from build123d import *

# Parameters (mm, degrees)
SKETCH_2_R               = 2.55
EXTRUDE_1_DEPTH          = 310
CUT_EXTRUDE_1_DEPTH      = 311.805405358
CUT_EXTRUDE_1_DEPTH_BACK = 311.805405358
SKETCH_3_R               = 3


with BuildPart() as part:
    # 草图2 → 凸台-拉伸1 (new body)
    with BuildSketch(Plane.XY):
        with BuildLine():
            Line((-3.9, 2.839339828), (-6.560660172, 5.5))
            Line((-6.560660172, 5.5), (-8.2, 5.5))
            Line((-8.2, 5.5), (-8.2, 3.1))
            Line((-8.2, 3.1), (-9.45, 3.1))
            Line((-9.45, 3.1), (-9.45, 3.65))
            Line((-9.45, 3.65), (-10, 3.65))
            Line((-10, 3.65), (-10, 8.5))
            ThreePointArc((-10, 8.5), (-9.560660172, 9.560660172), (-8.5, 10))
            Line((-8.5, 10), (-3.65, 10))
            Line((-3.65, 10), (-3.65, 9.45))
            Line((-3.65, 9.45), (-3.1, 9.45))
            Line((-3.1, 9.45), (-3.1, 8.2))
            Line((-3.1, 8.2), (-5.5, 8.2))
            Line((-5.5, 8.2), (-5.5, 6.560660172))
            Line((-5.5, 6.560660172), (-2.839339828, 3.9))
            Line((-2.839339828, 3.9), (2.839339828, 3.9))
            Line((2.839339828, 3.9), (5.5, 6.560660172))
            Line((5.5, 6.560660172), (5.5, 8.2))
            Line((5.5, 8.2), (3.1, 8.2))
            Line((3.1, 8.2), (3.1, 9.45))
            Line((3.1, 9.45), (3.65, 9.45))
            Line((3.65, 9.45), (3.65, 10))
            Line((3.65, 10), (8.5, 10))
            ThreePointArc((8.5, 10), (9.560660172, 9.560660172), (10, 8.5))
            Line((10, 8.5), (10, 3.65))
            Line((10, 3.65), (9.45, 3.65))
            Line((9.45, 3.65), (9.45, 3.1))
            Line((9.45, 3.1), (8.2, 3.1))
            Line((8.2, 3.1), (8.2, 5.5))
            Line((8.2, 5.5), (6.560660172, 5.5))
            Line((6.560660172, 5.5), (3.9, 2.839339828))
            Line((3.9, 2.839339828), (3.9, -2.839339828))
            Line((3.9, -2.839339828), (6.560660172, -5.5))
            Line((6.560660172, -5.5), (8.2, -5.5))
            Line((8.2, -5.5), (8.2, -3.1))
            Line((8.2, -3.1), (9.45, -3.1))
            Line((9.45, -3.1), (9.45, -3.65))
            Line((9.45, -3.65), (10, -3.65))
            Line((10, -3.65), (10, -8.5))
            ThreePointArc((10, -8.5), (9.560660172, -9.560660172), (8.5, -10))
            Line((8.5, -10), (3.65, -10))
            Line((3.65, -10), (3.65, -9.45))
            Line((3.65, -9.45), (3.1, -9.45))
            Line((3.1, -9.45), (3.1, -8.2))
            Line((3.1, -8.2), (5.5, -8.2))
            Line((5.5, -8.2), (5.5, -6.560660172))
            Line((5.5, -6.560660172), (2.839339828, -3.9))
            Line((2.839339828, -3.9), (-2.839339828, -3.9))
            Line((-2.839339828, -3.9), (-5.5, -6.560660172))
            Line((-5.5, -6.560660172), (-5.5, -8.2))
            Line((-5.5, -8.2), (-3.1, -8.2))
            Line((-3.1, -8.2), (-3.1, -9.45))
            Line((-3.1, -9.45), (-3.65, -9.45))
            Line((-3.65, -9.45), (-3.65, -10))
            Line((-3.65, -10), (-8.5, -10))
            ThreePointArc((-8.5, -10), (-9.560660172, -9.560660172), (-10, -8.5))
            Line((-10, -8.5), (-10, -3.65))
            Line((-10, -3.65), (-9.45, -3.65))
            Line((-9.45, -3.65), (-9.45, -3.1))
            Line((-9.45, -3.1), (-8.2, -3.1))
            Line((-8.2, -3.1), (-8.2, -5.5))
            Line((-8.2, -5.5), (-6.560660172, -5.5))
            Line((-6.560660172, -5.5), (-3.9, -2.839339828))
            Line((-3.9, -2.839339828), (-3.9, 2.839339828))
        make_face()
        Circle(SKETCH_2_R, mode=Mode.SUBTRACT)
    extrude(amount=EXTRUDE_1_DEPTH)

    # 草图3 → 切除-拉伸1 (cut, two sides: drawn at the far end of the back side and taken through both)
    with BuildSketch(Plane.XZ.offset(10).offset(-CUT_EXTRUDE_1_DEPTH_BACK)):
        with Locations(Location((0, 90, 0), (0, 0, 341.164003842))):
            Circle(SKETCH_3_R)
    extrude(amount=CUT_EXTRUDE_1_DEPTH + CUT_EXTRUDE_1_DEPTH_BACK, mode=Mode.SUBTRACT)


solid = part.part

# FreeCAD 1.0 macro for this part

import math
import FreeCAD as App
import Part
import Sketcher
Q = App.Units.Quantity

doc = App.newDocument("Part")
body = doc.addObject("PartDesign::Body", "Body")

# Sketch on XY plane
sketch1 = doc.addObject("Sketcher::SketchObject", "Sketch")
body.addObject(sketch1)
sketch1.AttachmentSupport = (doc.XY_Plane, [""])
sketch1.MapMode = "FlatFace"
sketch1.addGeometry([
    Part.LineSegment(App.Vector(-6.6, 5.5, 0), App.Vector(-3.9, 2.8, 0)),  # 0
    Part.LineSegment(App.Vector(-3.9, 2.8, 0), App.Vector(-3.9, -2.8, 0)),  # 1
    Part.LineSegment(App.Vector(-3.9, -2.8, 0), App.Vector(-6.6, -5.5, 0)),  # 2
    Part.LineSegment(App.Vector(-6.6, -5.5, 0), App.Vector(-8.2, -5.5, 0)),  # 3
    Part.LineSegment(App.Vector(-8.2, -5.5, 0), App.Vector(-8.2, -3.1, 0)),  # 4
    Part.LineSegment(App.Vector(-8.2, -3.1, 0), App.Vector(-9.4, -3.1, 0)),  # 5
    Part.LineSegment(App.Vector(-9.4, -3.1, 0), App.Vector(-9.4, -3.6, 0)),  # 6
    Part.LineSegment(App.Vector(-9.4, -3.6, 0), App.Vector(-10, -3.6, 0)),  # 7
    Part.LineSegment(App.Vector(-10, -3.6, 0), App.Vector(-10, -8.5, 0)),  # 8
    Part.ArcOfCircle(Part.Circle(App.Vector(-8.5, -8.5, 0), App.Vector(0, 0, 1), 1.5), math.radians(180), math.radians(270)),  # 9
    Part.LineSegment(App.Vector(-8.5, -10, 0), App.Vector(-3.6, -10, 0)),  # 10
    Part.LineSegment(App.Vector(-3.6, -10, 0), App.Vector(-3.6, -9.4, 0)),  # 11
    Part.LineSegment(App.Vector(-3.6, -9.4, 0), App.Vector(-3.1, -9.4, 0)),  # 12
    Part.LineSegment(App.Vector(-3.1, -9.4, 0), App.Vector(-3.1, -8.2, 0)),  # 13
    Part.LineSegment(App.Vector(-3.1, -8.2, 0), App.Vector(-5.5, -8.2, 0)),  # 14
    Part.LineSegment(App.Vector(-5.5, -8.2, 0), App.Vector(-5.5, -6.6, 0)),  # 15
    Part.LineSegment(App.Vector(-5.5, -6.6, 0), App.Vector(-2.8, -3.9, 0)),  # 16
    Part.LineSegment(App.Vector(-2.8, -3.9, 0), App.Vector(2.8, -3.9, 0)),  # 17
    Part.LineSegment(App.Vector(2.8, -3.9, 0), App.Vector(5.5, -6.6, 0)),  # 18
    Part.LineSegment(App.Vector(5.5, -6.6, 0), App.Vector(5.5, -8.2, 0)),  # 19
    Part.LineSegment(App.Vector(5.5, -8.2, 0), App.Vector(3.1, -8.2, 0)),  # 20
    Part.LineSegment(App.Vector(3.1, -8.2, 0), App.Vector(3.1, -9.4, 0)),  # 21
    Part.LineSegment(App.Vector(3.1, -9.4, 0), App.Vector(3.6, -9.4, 0)),  # 22
    Part.LineSegment(App.Vector(3.6, -9.4, 0), App.Vector(3.6, -10, 0)),  # 23
    Part.LineSegment(App.Vector(3.6, -10, 0), App.Vector(8.5, -10, 0)),  # 24
    Part.ArcOfCircle(Part.Circle(App.Vector(8.5, -8.5, 0), App.Vector(0, 0, 1), 1.5), math.radians(-90), math.radians(0)),  # 25
    Part.LineSegment(App.Vector(10, -8.5, 0), App.Vector(10, -3.6, 0)),  # 26
    Part.LineSegment(App.Vector(10, -3.6, 0), App.Vector(9.4, -3.6, 0)),  # 27
    Part.LineSegment(App.Vector(9.4, -3.6, 0), App.Vector(9.4, -3.1, 0)),  # 28
    Part.LineSegment(App.Vector(9.4, -3.1, 0), App.Vector(8.2, -3.1, 0)),  # 29
    Part.LineSegment(App.Vector(8.2, -3.1, 0), App.Vector(8.2, -5.5, 0)),  # 30
    Part.LineSegment(App.Vector(8.2, -5.5, 0), App.Vector(6.6, -5.5, 0)),  # 31
    Part.LineSegment(App.Vector(6.6, -5.5, 0), App.Vector(3.9, -2.8, 0)),  # 32
    Part.LineSegment(App.Vector(3.9, -2.8, 0), App.Vector(3.9, 2.8, 0)),  # 33
    Part.LineSegment(App.Vector(3.9, 2.8, 0), App.Vector(6.6, 5.5, 0)),  # 34
    Part.LineSegment(App.Vector(6.6, 5.5, 0), App.Vector(8.2, 5.5, 0)),  # 35
    Part.LineSegment(App.Vector(8.2, 5.5, 0), App.Vector(8.2, 3.1, 0)),  # 36
    Part.LineSegment(App.Vector(8.2, 3.1, 0), App.Vector(9.4, 3.1, 0)),  # 37
    Part.LineSegment(App.Vector(9.4, 3.1, 0), App.Vector(9.4, 3.6, 0)),  # 38
    Part.LineSegment(App.Vector(9.4, 3.6, 0), App.Vector(10, 3.6, 0)),  # 39
    Part.LineSegment(App.Vector(10, 3.6, 0), App.Vector(10, 8.5, 0)),  # 40
    Part.ArcOfCircle(Part.Circle(App.Vector(8.5, 8.5, 0), App.Vector(0, 0, 1), 1.5), math.radians(0), math.radians(90)),  # 41
    Part.LineSegment(App.Vector(8.5, 10, 0), App.Vector(3.6, 10, 0)),  # 42
    Part.LineSegment(App.Vector(3.6, 10, 0), App.Vector(3.6, 9.4, 0)),  # 43
    Part.LineSegment(App.Vector(3.6, 9.4, 0), App.Vector(3.1, 9.4, 0)),  # 44
    Part.LineSegment(App.Vector(3.1, 9.4, 0), App.Vector(3.1, 8.2, 0)),  # 45
    Part.LineSegment(App.Vector(3.1, 8.2, 0), App.Vector(5.5, 8.2, 0)),  # 46
    Part.LineSegment(App.Vector(5.5, 8.2, 0), App.Vector(5.5, 6.6, 0)),  # 47
    Part.LineSegment(App.Vector(5.5, 6.6, 0), App.Vector(2.8, 3.9, 0)),  # 48
    Part.LineSegment(App.Vector(2.8, 3.9, 0), App.Vector(-2.8, 3.9, 0)),  # 49
    Part.LineSegment(App.Vector(-2.8, 3.9, 0), App.Vector(-5.5, 6.6, 0)),  # 50
    Part.LineSegment(App.Vector(-5.5, 6.6, 0), App.Vector(-5.5, 8.2, 0)),  # 51
    Part.LineSegment(App.Vector(-5.5, 8.2, 0), App.Vector(-3.1, 8.2, 0)),  # 52
    Part.LineSegment(App.Vector(-3.1, 8.2, 0), App.Vector(-3.1, 9.4, 0)),  # 53
    Part.LineSegment(App.Vector(-3.1, 9.4, 0), App.Vector(-3.6, 9.4, 0)),  # 54
    Part.LineSegment(App.Vector(-3.6, 9.4, 0), App.Vector(-3.6, 10, 0)),  # 55
    Part.LineSegment(App.Vector(-3.6, 10, 0), App.Vector(-8.5, 10, 0)),  # 56
    Part.ArcOfCircle(Part.Circle(App.Vector(-8.5, 8.5, 0), App.Vector(0, 0, 1), 1.5), math.radians(90), math.radians(180)),  # 57
    Part.LineSegment(App.Vector(-10, 8.5, 0), App.Vector(-10, 3.6, 0)),  # 58
    Part.LineSegment(App.Vector(-10, 3.6, 0), App.Vector(-9.4, 3.6, 0)),  # 59
    Part.LineSegment(App.Vector(-9.4, 3.6, 0), App.Vector(-9.4, 3.1, 0)),  # 60
    Part.LineSegment(App.Vector(-9.4, 3.1, 0), App.Vector(-8.2, 3.1, 0)),  # 61
    Part.LineSegment(App.Vector(-8.2, 3.1, 0), App.Vector(-8.2, 5.5, 0)),  # 62
    Part.LineSegment(App.Vector(-8.2, 5.5, 0), App.Vector(-6.6, 5.5, 0)),  # 63
    Part.Circle(App.Vector(0, 0, 0), App.Vector(0, 0, 1), 2.5),  # 64
], False)
sketch1.addConstraint([
    Sketcher.Constraint("Coincident", 0, 2, 1, 1),
    Sketcher.Constraint("Coincident", 1, 2, 2, 1),
    Sketcher.Constraint("Coincident", 2, 2, 3, 1),
    Sketcher.Constraint("Coincident", 3, 2, 4, 1),
    Sketcher.Constraint("Coincident", 4, 2, 5, 1),
    Sketcher.Constraint("Coincident", 5, 2, 6, 1),
    Sketcher.Constraint("Coincident", 6, 2, 7, 1),
    Sketcher.Constraint("Coincident", 7, 2, 8, 1),
    Sketcher.Constraint("Tangent", 8, 2, 9, 1),
    Sketcher.Constraint("Tangent", 9, 2, 10, 1),
    Sketcher.Constraint("Coincident", 10, 2, 11, 1),
    Sketcher.Constraint("Coincident", 11, 2, 12, 1),
    Sketcher.Constraint("Coincident", 12, 2, 13, 1),
    Sketcher.Constraint("Coincident", 13, 2, 14, 1),
    Sketcher.Constraint("Coincident", 14, 2, 15, 1),
    Sketcher.Constraint("Coincident", 15, 2, 16, 1),
    Sketcher.Constraint("Coincident", 16, 2, 17, 1),
    Sketcher.Constraint("Coincident", 17, 2, 18, 1),
    Sketcher.Constraint("Coincident", 18, 2, 19, 1),
    Sketcher.Constraint("Coincident", 19, 2, 20, 1),
    Sketcher.Constraint("Coincident", 20, 2, 21, 1),
    Sketcher.Constraint("Coincident", 21, 2, 22, 1),
    Sketcher.Constraint("Coincident", 22, 2, 23, 1),
    Sketcher.Constraint("Coincident", 23, 2, 24, 1),
    Sketcher.Constraint("Tangent", 24, 2, 25, 1),
    Sketcher.Constraint("Tangent", 25, 2, 26, 1),
    Sketcher.Constraint("Coincident", 26, 2, 27, 1),
    Sketcher.Constraint("Coincident", 27, 2, 28, 1),
    Sketcher.Constraint("Coincident", 28, 2, 29, 1),
    Sketcher.Constraint("Coincident", 29, 2, 30, 1),
    Sketcher.Constraint("Coincident", 30, 2, 31, 1),
    Sketcher.Constraint("Coincident", 31, 2, 32, 1),
    Sketcher.Constraint("Coincident", 32, 2, 33, 1),
    Sketcher.Constraint("Coincident", 33, 2, 34, 1),
    Sketcher.Constraint("Coincident", 34, 2, 35, 1),
    Sketcher.Constraint("Coincident", 35, 2, 36, 1),
    Sketcher.Constraint("Coincident", 36, 2, 37, 1),
    Sketcher.Constraint("Coincident", 37, 2, 38, 1),
    Sketcher.Constraint("Coincident", 38, 2, 39, 1),
    Sketcher.Constraint("Coincident", 39, 2, 40, 1),
    Sketcher.Constraint("Tangent", 40, 2, 41, 1),
    Sketcher.Constraint("Tangent", 41, 2, 42, 1),
    Sketcher.Constraint("Coincident", 42, 2, 43, 1),
    Sketcher.Constraint("Coincident", 43, 2, 44, 1),
    Sketcher.Constraint("Coincident", 44, 2, 45, 1),
    Sketcher.Constraint("Coincident", 45, 2, 46, 1),
    Sketcher.Constraint("Coincident", 46, 2, 47, 1),
    Sketcher.Constraint("Coincident", 47, 2, 48, 1),
    Sketcher.Constraint("Coincident", 48, 2, 49, 1),
    Sketcher.Constraint("Coincident", 49, 2, 50, 1),
    Sketcher.Constraint("Coincident", 50, 2, 51, 1),
    Sketcher.Constraint("Coincident", 51, 2, 52, 1),
    Sketcher.Constraint("Coincident", 52, 2, 53, 1),
    Sketcher.Constraint("Coincident", 53, 2, 54, 1),
    Sketcher.Constraint("Coincident", 54, 2, 55, 1),
    Sketcher.Constraint("Coincident", 55, 2, 56, 1),
    Sketcher.Constraint("Tangent", 56, 2, 57, 1),
    Sketcher.Constraint("Tangent", 57, 2, 58, 1),
    Sketcher.Constraint("Coincident", 58, 2, 59, 1),
    Sketcher.Constraint("Coincident", 59, 2, 60, 1),
    Sketcher.Constraint("Coincident", 60, 2, 61, 1),
    Sketcher.Constraint("Coincident", 61, 2, 62, 1),
    Sketcher.Constraint("Coincident", 62, 2, 63, 1),
    Sketcher.Constraint("Coincident", 63, 2, 0, 1),
    Sketcher.Constraint("Vertical", 1),
    Sketcher.Constraint("Horizontal", 3),
    Sketcher.Constraint("Vertical", 4),
    Sketcher.Constraint("Horizontal", 5),
    Sketcher.Constraint("Vertical", 6),
    Sketcher.Constraint("Horizontal", 7),
    Sketcher.Constraint("Vertical", 8),
    Sketcher.Constraint("Horizontal", 10),
    Sketcher.Constraint("Vertical", 11),
    Sketcher.Constraint("Horizontal", 12),
    Sketcher.Constraint("Vertical", 13),
    Sketcher.Constraint("Horizontal", 14),
    Sketcher.Constraint("Vertical", 15),
    Sketcher.Constraint("Horizontal", 17),
    Sketcher.Constraint("Vertical", 19),
    Sketcher.Constraint("Horizontal", 20),
    Sketcher.Constraint("Vertical", 21),
    Sketcher.Constraint("Horizontal", 22),
    Sketcher.Constraint("Vertical", 23),
    Sketcher.Constraint("Horizontal", 24),
    Sketcher.Constraint("Vertical", 26),
    Sketcher.Constraint("Horizontal", 27),
    Sketcher.Constraint("Vertical", 28),
    Sketcher.Constraint("Horizontal", 29),
    Sketcher.Constraint("Vertical", 30),
    Sketcher.Constraint("Horizontal", 31),
    Sketcher.Constraint("Vertical", 33),
    Sketcher.Constraint("Horizontal", 35),
    Sketcher.Constraint("Vertical", 36),
    Sketcher.Constraint("Horizontal", 37),
    Sketcher.Constraint("Vertical", 38),
    Sketcher.Constraint("Horizontal", 39),
    Sketcher.Constraint("Vertical", 40),
    Sketcher.Constraint("Horizontal", 42),
    Sketcher.Constraint("Vertical", 43),
    Sketcher.Constraint("Horizontal", 44),
    Sketcher.Constraint("Vertical", 45),
    Sketcher.Constraint("Horizontal", 46),
    Sketcher.Constraint("Vertical", 47),
    Sketcher.Constraint("Horizontal", 49),
    Sketcher.Constraint("Vertical", 51),
    Sketcher.Constraint("Horizontal", 52),
    Sketcher.Constraint("Vertical", 53),
    Sketcher.Constraint("Horizontal", 54),
    Sketcher.Constraint("Vertical", 55),
    Sketcher.Constraint("Horizontal", 56),
    Sketcher.Constraint("Vertical", 58),
    Sketcher.Constraint("Horizontal", 59),
    Sketcher.Constraint("Vertical", 60),
    Sketcher.Constraint("Horizontal", 61),
    Sketcher.Constraint("Vertical", 62),
    Sketcher.Constraint("Horizontal", 63),
    Sketcher.Constraint("Coincident", 64, 3, -1, 1),
    Sketcher.Constraint("Equal", 9, 25),
    Sketcher.Constraint("Equal", 25, 41),
    Sketcher.Constraint("Equal", 41, 57),
    Sketcher.Constraint("Symmetric", 9, 3, 41, 3, -1, 1),
    Sketcher.Constraint("Symmetric", 25, 3, 57, 3, -1, 1),
    Sketcher.Constraint("Symmetric", 0, 2, 32, 2, -1, 1),
    Sketcher.Constraint("Symmetric", 2, 2, 34, 2, -1, 1),
    Sketcher.Constraint("Symmetric", 4, 2, 36, 2, -1, 1),
    Sketcher.Constraint("Symmetric", 6, 2, 38, 2, -1, 1),
    Sketcher.Constraint("Symmetric", 11, 2, 43, 2, -1, 1),
    Sketcher.Constraint("Symmetric", 13, 2, 45, 2, -1, 1),
    Sketcher.Constraint("Symmetric", 15, 2, 47, 2, -1, 1),
    Sketcher.Constraint("Symmetric", 16, 2, 48, 2, -1, 1),
    Sketcher.Constraint("Symmetric", 18, 2, 50, 2, -1, 1),
    Sketcher.Constraint("Symmetric", 20, 2, 52, 2, -1, 1),
    Sketcher.Constraint("Symmetric", 22, 2, 54, 2, -1, 1),
    Sketcher.Constraint("Symmetric", 27, 2, 59, 2, -1, 1),
    Sketcher.Constraint("Symmetric", 29, 2, 61, 2, -1, 1),
    Sketcher.Constraint("Symmetric", 31, 2, 63, 2, -1, 1),
    Sketcher.Constraint("Symmetric", 9, 3, 25, 3, -2),
    Sketcher.Constraint("Symmetric", 15, 2, 18, 2, -2),
    Sketcher.Constraint("Symmetric", 13, 2, 20, 2, -2),
    Sketcher.Constraint("Symmetric", 11, 2, 22, 2, -2),
    Sketcher.Constraint("Symmetric", 6, 2, 27, 2, -2),
    Sketcher.Constraint("Symmetric", 4, 2, 29, 2, -2),
    Sketcher.Constraint("Symmetric", 2, 2, 31, 2, -2),
    Sketcher.Constraint("Perpendicular", 0, 2),
    Sketcher.Constraint("Parallel", 2, 16),
    Sketcher.Constraint("Perpendicular", 16, 18),
    Sketcher.Constraint("Perpendicular", 32, 34),
    Sketcher.Constraint("Perpendicular", 48, 50),
    Sketcher.Constraint("Horizontal", 1, 2, 32, 2),
    Sketcher.Constraint("Equal", 7, 12),
    Sketcher.Constraint("Equal", 49, 1),
    Sketcher.Constraint("Equal", 52, 4),
    Sketcher.Constraint("Equal", 59, 6),
    Sketcher.Constraint("Equal", 56, 8),
    Sketcher.Constraint("Equal", 6, 11),
    Sketcher.Constraint("Equal", 61, 13),
    Sketcher.Constraint("Equal", 63, 15),
    Sketcher.Constraint("Equal", 2, 16),
    Sketcher.Constraint("Diameter", 64, Q("5.1 mm")),
    Sketcher.Constraint("Radius", 9, Q("1.5 mm")),
    Sketcher.Constraint("DistanceX", 14, 2, 14, 1, Q("2.4 mm")),
    Sketcher.Constraint("DistanceX", 7, 2, -1, 1, Q("10 mm")),
    Sketcher.Constraint("DistanceX", 5, 2, 5, 1, Q("1.25 mm")),
    Sketcher.Constraint("DistanceX", 7, 2, 7, 1, Q("0.55 mm")),
    Sketcher.Constraint("DistanceX", 10, 1, 10, 2, Q("4.85 mm")),
    Sketcher.Constraint("DistanceX", 0, 2, -1, 1, Q("3.9 mm")),
    Sketcher.Constraint("DistanceX", 3, 2, 3, 1, Q("1.63934 mm")),
])
pad1 = doc.addObject("PartDesign::Pad", "Pad")
body.addObject(pad1)
pad1.Profile = sketch1
pad1.Length = 310

# Sketch on XZ plane
sketch2 = doc.addObject("Sketcher::SketchObject", "Sketch001")
body.addObject(sketch2)
sketch2.AttachmentSupport = (doc.XZ_Plane, [""])
sketch2.MapMode = "FlatFace"
sketch2.AttachmentOffset = App.Placement(App.Vector(0, 0, 10), App.Rotation())
sketch2.addGeometry(Part.Circle(App.Vector(0, 90, 0), App.Vector(0, 0, 1), 3), False)
sketch2.addConstraint([
    Sketcher.Constraint("PointOnObject", 0, 3, -2),
    Sketcher.Constraint("Diameter", 0, Q("6 mm")),
    Sketcher.Constraint("DistanceY", -1, 1, 0, 3, Q("90 mm")),
])
pocket1 = doc.addObject("PartDesign::Pocket", "Pocket")
body.addObject(pocket1)
pocket1.Profile = sketch2
pocket1.Type = "ThroughAll"
pocket1.Midplane = True

doc.recompute()
